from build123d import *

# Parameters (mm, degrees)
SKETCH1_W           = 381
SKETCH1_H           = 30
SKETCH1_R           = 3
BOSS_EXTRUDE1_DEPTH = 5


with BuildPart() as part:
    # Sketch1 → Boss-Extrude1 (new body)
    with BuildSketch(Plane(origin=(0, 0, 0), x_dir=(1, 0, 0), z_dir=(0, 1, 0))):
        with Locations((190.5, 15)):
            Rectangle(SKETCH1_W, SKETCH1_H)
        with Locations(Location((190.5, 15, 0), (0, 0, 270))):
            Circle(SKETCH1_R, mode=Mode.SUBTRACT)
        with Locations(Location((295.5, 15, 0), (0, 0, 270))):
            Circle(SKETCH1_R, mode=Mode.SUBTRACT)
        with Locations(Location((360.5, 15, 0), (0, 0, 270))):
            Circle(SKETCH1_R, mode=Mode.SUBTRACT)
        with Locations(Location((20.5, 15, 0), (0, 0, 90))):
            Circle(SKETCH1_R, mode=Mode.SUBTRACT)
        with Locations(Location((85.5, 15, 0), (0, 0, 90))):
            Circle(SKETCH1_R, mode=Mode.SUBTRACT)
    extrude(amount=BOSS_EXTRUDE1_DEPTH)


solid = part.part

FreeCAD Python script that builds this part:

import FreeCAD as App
import Part
import Sketcher

V = App.Vector

doc = App.newDocument("Part")
body = doc.addObject("PartDesign::Body", "Body")

# Sketch on XZ plane
sketch1 = body.newObject("Sketcher::SketchObject", "Sketch")
sketch1.AttachmentSupport = (doc.getObject("XZ_Plane"), [""])
sketch1.MapMode = "FlatFace"
sketch1.addGeometry([
    Part.LineSegment(V(0, -30, 0), V(0, 0, 0)),  # 0
    Part.LineSegment(V(0, 0, 0), V(381, 0, 0)),  # 1
    Part.LineSegment(V(381, 0, 0), V(381, -30, 0)),  # 2
    Part.LineSegment(V(381, -30, 0), V(0, -30, 0)),  # 3
    Part.Circle(V(20.5, -15, 0), V(0, 0, 1), 3),  # 4
    Part.Circle(V(85.5, -15, 0), V(0, 0, 1), 3),  # 5
    Part.Circle(V(190.5, -15, 0), V(0, 0, 1), 3),  # 6
    Part.Circle(V(295.5, -15, 0), V(0, 0, 1), 3),  # 7
    Part.Circle(V(360.5, -15, 0), V(0, 0, 1), 3),  # 8
], False)
sketch1.addConstraint([
    Sketcher.Constraint("Coincident", 0, 2, 1, 1),
    Sketcher.Constraint("Coincident", 1, 2, 2, 1),
    Sketcher.Constraint("Coincident", 2, 2, 3, 1),
    Sketcher.Constraint("Coincident", 3, 2, 0, 1),
    Sketcher.Constraint("Vertical", 0),
    Sketcher.Constraint("Horizontal", 1),
    Sketcher.Constraint("Vertical", 2),
    Sketcher.Constraint("Horizontal", 3),
    Sketcher.Constraint("Coincident", 0, 2, -1, 1),
    Sketcher.Constraint("Equal", 4, 5),
    Sketcher.Constraint("Equal", 5, 6),
    Sketcher.Constraint("Equal", 6, 7),
    Sketcher.Constraint("Equal", 7, 8),
    Sketcher.Constraint("Horizontal", 4, 3, 5, 3),
    Sketcher.Constraint("Horizontal", 5, 3, 6, 3),
    Sketcher.Constraint("Horizontal", 6, 3, 7, 3),
    Sketcher.Constraint("Horizontal", 7, 3, 8, 3),
    Sketcher.Constraint("Diameter", 4, 6.0),
    Sketcher.Constraint("DistanceX", 1, 1, 1, 2, 381.0),
    Sketcher.Constraint("DistanceY", 0, 1, 0, 2, 30.0),
    Sketcher.Constraint("DistanceY", 4, 3, -1, 1, 15.0),
    Sketcher.Constraint("DistanceX", 4, 3, 5, 3, 65.0),
    Sketcher.Constraint("DistanceX", 5, 3, 6, 3, 105.0),
    Sketcher.Constraint("DistanceX", 6, 3, 7, 3, 105.0),
    Sketcher.Constraint("DistanceX", 7, 3, 8, 3, 65.0),
    Sketcher.Constraint("DistanceX", -1, 1, 4, 3, 20.5),
])
pad1 = body.newObject("PartDesign::Pad", "Pad")
pad1.Profile = sketch1
pad1.Length = 5
pad1.Reversed = True

doc.recompute()
